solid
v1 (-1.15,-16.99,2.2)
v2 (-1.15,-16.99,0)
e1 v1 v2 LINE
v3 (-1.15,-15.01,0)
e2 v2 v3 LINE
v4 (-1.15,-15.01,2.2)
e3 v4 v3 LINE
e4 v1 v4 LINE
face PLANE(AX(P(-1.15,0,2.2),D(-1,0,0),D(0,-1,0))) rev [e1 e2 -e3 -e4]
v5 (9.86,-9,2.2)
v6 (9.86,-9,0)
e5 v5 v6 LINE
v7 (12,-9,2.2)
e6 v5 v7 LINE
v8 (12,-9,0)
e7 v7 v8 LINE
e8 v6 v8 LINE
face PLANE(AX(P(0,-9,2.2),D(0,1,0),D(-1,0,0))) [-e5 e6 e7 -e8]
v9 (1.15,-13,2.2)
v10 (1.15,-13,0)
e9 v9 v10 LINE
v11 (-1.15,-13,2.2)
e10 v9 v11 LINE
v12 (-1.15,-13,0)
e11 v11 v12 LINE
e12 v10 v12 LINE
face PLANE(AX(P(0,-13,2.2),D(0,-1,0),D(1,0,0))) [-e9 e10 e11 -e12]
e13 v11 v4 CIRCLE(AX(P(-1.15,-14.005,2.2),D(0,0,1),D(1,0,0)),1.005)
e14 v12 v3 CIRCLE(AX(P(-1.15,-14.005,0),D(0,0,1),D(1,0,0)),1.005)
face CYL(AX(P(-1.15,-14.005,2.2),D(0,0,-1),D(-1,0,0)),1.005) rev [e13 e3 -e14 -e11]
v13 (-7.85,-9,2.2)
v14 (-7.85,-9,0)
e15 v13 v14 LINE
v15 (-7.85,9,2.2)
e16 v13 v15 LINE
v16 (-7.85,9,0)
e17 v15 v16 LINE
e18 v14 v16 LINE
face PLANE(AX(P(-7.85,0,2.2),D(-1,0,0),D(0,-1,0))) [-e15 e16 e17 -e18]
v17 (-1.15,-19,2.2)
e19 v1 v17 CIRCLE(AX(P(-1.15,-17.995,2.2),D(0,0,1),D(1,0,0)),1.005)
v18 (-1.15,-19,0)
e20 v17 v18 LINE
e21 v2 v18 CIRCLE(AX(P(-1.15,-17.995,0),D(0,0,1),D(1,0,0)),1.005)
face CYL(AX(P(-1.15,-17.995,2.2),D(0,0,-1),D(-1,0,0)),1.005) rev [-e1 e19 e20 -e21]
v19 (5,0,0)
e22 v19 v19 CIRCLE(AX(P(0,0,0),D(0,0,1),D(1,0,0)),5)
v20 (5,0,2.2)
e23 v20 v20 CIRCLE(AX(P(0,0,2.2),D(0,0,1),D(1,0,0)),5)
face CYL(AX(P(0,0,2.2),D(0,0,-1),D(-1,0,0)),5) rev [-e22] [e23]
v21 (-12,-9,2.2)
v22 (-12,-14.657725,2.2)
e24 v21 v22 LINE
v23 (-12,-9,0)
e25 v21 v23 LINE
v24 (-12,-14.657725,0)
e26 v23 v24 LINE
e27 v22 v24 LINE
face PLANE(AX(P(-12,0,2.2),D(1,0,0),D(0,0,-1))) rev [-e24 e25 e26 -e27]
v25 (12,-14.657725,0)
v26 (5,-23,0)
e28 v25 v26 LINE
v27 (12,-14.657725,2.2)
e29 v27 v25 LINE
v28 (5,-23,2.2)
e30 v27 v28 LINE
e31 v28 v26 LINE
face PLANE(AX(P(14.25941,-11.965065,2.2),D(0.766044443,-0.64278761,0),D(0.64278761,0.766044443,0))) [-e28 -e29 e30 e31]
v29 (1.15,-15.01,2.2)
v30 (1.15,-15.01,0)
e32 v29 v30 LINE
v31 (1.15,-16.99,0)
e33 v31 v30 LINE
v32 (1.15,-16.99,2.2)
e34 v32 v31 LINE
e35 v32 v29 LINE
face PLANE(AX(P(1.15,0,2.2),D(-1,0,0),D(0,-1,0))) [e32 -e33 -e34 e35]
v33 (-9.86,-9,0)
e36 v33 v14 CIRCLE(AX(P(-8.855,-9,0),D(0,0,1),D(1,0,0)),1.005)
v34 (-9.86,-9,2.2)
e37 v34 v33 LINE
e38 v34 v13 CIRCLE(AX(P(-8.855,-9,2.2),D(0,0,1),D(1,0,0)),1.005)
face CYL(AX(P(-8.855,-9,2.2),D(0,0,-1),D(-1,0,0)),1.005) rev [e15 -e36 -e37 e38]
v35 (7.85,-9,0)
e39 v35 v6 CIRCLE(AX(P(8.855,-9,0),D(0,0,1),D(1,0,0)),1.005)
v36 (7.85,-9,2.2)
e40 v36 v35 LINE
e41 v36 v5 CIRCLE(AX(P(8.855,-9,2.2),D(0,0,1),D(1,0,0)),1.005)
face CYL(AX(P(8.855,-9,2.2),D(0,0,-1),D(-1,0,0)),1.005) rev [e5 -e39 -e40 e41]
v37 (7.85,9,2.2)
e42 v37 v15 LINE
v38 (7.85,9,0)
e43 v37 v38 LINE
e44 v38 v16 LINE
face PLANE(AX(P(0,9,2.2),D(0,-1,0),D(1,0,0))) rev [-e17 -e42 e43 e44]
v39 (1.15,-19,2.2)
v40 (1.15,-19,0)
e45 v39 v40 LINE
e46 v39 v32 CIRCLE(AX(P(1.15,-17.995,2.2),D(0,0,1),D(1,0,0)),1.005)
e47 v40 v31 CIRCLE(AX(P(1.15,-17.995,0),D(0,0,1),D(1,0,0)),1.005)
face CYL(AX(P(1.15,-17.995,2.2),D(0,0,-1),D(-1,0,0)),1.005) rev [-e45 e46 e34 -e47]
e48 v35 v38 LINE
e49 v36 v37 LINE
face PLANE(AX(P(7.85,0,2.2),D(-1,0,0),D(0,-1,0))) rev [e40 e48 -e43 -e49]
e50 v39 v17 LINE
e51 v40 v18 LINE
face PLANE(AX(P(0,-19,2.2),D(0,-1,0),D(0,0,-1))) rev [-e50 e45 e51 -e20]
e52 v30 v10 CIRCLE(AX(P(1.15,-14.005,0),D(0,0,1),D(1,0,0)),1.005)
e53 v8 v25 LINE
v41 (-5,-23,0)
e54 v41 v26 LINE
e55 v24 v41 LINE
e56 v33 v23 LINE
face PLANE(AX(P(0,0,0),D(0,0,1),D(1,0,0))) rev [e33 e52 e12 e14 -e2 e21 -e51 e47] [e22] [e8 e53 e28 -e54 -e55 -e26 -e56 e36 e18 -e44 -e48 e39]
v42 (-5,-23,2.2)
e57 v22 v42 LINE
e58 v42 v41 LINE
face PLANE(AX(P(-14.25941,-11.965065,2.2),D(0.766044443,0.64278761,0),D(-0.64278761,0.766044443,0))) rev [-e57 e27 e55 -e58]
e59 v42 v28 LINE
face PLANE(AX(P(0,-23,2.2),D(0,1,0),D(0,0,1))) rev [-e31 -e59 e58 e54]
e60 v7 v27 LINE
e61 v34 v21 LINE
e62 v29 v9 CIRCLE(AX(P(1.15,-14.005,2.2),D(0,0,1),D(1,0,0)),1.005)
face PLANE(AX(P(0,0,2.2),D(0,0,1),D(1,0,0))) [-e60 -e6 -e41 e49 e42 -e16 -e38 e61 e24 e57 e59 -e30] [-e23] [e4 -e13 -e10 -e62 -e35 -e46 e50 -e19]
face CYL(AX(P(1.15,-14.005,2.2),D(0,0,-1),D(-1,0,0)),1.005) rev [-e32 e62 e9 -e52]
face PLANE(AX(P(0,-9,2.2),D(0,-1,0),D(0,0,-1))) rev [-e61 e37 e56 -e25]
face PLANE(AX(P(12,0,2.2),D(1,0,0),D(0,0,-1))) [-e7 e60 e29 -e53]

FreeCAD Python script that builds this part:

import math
import FreeCAD as App
import Part
import Sketcher

V = App.Vector
Q = App.Units.Quantity

doc = App.newDocument("Part")
params = doc.addObject("Spreadsheet::Sheet", "Params")
for row, (alias, value) in enumerate([
    ("sketch1_diameter", "10 mm"),
    ("sketch1_width", "10 mm"),
    ("sketch1_height", "18 mm"),
    ("sketch1_width2", "15.7 mm"),
    ("sketch1_width3", "2.3 mm"),
    ("pad1_length", "2.2 mm"),
], start=1):
    params.set(f"A{row}", alias)
    params.set(f"B{row}", "=" + value)
    params.setAlias(f"B{row}", alias)

body = doc.addObject("PartDesign::Body", "Body")

# Sketch on XY plane
sketch1 = body.newObject("Sketcher::SketchObject", "Sketch")
sketch1.AttachmentSupport = (doc.getObject("XY_Plane"), [""])
sketch1.MapMode = "FlatFace"
sketch1.addGeometry(Part.LineSegment(V(-7.8, 9, 0), V(-7.8, -9, 0)), False)
sketch1.addGeometry(Part.ArcOfCircle(Part.Circle(V(-8.9, -9, 0), V(0, 0, 1), 1), math.radians(180), math.radians(360)), False)
sketch1.addGeometry(Part.LineSegment(V(-9.9, -9, 0), V(-12, -9, 0)), False)
sketch1.addGeometry(Part.LineSegment(V(-12, -9, 0), V(-12, -14.7, 0)), False)
sketch1.addGeometry(Part.LineSegment(V(-12, -14.7, 0), V(-5, -23, 0)), False)
sketch1.addGeometry(Part.LineSegment(V(-5, -23, 0), V(5, -23, 0)), False)
sketch1.addGeometry(Part.LineSegment(V(5, -23, 0), V(12, -14.7, 0)), False)
sketch1.addGeometry(Part.LineSegment(V(12, -14.7, 0), V(12, -9, 0)), False)
sketch1.addGeometry(Part.LineSegment(V(12, -9, 0), V(9.9, -9, 0)), False)
sketch1.addGeometry(Part.ArcOfCircle(Part.Circle(V(8.9, -9, 0), V(0, 0, 1), 1), math.radians(180), math.radians(360)), False)
sketch1.addGeometry(Part.LineSegment(V(7.8, -9, 0), V(7.8, 9, 0)), False)
sketch1.addGeometry(Part.LineSegment(V(7.8, 9, 0), V(-7.8, 9, 0)), False)
sketch1.addGeometry(Part.ArcOfCircle(Part.Circle(V(1.1, -18, 0), V(0, 0, 1), 1), math.radians(0), math.radians(90)), False)
sketch1.addGeometry(Part.ArcOfCircle(Part.Circle(V(1.1, -18, 0), V(0, 0, 1), 1), math.radians(-90), math.radians(0)), False)
sketch1.addGeometry(Part.LineSegment(V(1.1, -19, 0), V(-1.1, -19, 0)), False)
sketch1.addGeometry(Part.ArcOfCircle(Part.Circle(V(-1.1, -18, 0), V(0, 0, 1), 1), math.radians(90), math.radians(270)), False)
sketch1.addGeometry(Part.LineSegment(V(-1.1, -17, 0), V(-1.1, -15, 0)), False)
sketch1.addGeometry(Part.ArcOfCircle(Part.Circle(V(-1.1, -14, 0), V(0, 0, 1), 1), math.radians(90), math.radians(270)), False)
sketch1.addGeometry(Part.LineSegment(V(-1.1, -13, 0), V(1.1, -13, 0)), False)
sketch1.addGeometry(Part.ArcOfCircle(Part.Circle(V(1.1, -14, 0), V(0, 0, 1), 1), math.radians(0), math.radians(90)), False)
sketch1.addGeometry(Part.ArcOfCircle(Part.Circle(V(1.1, -14, 0), V(0, 0, 1), 1), math.radians(-90), math.radians(0)), False)
sketch1.addGeometry(Part.LineSegment(V(1.1, -15, 0), V(1.1, -17, 0)), False)
sketch1.addGeometry(Part.Circle(V(0, 0, 0), V(0, 0, 1), 5), False)
sketch1.addConstraint(Sketcher.Constraint("Tangent", 0, 2, 1, 2))
sketch1.addConstraint(Sketcher.Constraint("Coincident", 1, 1, 2, 1))
sketch1.addConstraint(Sketcher.Constraint("Coincident", 2, 2, 3, 1))
sketch1.addConstraint(Sketcher.Constraint("Coincident", 3, 2, 4, 1))
sketch1.addConstraint(Sketcher.Constraint("Coincident", 4, 2, 5, 1))
sketch1.addConstraint(Sketcher.Constraint("Coincident", 5, 2, 6, 1))
sketch1.addConstraint(Sketcher.Constraint("Coincident", 6, 2, 7, 1))
sketch1.addConstraint(Sketcher.Constraint("Coincident", 7, 2, 8, 1))
sketch1.addConstraint(Sketcher.Constraint("Coincident", 8, 2, 9, 2))
sketch1.addConstraint(Sketcher.Constraint("Tangent", 9, 1, 10, 1))
sketch1.addConstraint(Sketcher.Constraint("Coincident", 10, 2, 11, 1))
sketch1.addConstraint(Sketcher.Constraint("Coincident", 11, 2, 0, 1))
sketch1.addConstraint(Sketcher.Constraint("Tangent", 12, 1, 13, 2))
sketch1.addConstraint(Sketcher.Constraint("Tangent", 13, 1, 14, 1))
sketch1.addConstraint(Sketcher.Constraint("Tangent", 14, 2, 15, 2))
sketch1.addConstraint(Sketcher.Constraint("Coincident", 15, 1, 16, 1))
sketch1.addConstraint(Sketcher.Constraint("Coincident", 16, 2, 17, 2))
sketch1.addConstraint(Sketcher.Constraint("Tangent", 17, 1, 18, 1))
sketch1.addConstraint(Sketcher.Constraint("Tangent", 18, 2, 19, 2))
sketch1.addConstraint(Sketcher.Constraint("Tangent", 19, 1, 20, 2))
sketch1.addConstraint(Sketcher.Constraint("Coincident", 20, 1, 21, 1))
sketch1.addConstraint(Sketcher.Constraint("Coincident", 21, 2, 12, 2))
sketch1.addConstraint(Sketcher.Constraint("Vertical", 0))
sketch1.addConstraint(Sketcher.Constraint("Horizontal", 2))
sketch1.addConstraint(Sketcher.Constraint("Vertical", 3))
sketch1.addConstraint(Sketcher.Constraint("Horizontal", 5))
sketch1.addConstraint(Sketcher.Constraint("Vertical", 7))
sketch1.addConstraint(Sketcher.Constraint("Horizontal", 8))
sketch1.addConstraint(Sketcher.Constraint("Vertical", 10))
sketch1.addConstraint(Sketcher.Constraint("Horizontal", 11))
sketch1.addConstraint(Sketcher.Constraint("Horizontal", 14))
sketch1.addConstraint(Sketcher.Constraint("Vertical", 16))
sketch1.addConstraint(Sketcher.Constraint("Horizontal", 18))
sketch1.addConstraint(Sketcher.Constraint("Vertical", 21))
sketch1.addConstraint(Sketcher.Constraint("Coincident", 22, 3, -1, 1))
sketch1.addConstraint(Sketcher.Constraint("Equal", 1, 9))
sketch1.addConstraint(Sketcher.Constraint("Equal", 9, 12))
sketch1.addConstraint(Sketcher.Constraint("Equal", 12, 13))
sketch1.addConstraint(Sketcher.Constraint("Equal", 13, 15))
sketch1.addConstraint(Sketcher.Constraint("Equal", 15, 17))
sketch1.addConstraint(Sketcher.Constraint("Equal", 17, 19))
sketch1.addConstraint(Sketcher.Constraint("Equal", 19, 20))
sketch1.addConstraint(Sketcher.Constraint("Symmetric", 0, 2, 10, 2, -1, 1))
sketch1.addConstraint(Sketcher.Constraint("Symmetric", 3, 2, 6, 2, -2))
sketch1.addConstraint(Sketcher.Constraint("Horizontal", 1, 3, 9, 3))
sketch1.addConstraint(Sketcher.Constraint("Horizontal", 0, 2, 1, 1))
sketch1.addConstraint(Sketcher.Constraint("Horizontal", 2, 2, 7, 2))
sketch1.addConstraint(Sketcher.Constraint("Horizontal", 15, 3, 12, 1))
sketch1.addConstraint(Sketcher.Constraint("Horizontal", 20, 3, 19, 1))
sketch1.addConstraint(Sketcher.Constraint("Vertical", 15, 3, 17, 3))
sketch1.addConstraint(Sketcher.Constraint("Vertical", 13, 3, 19, 3))
sketch1.addConstraint(Sketcher.Constraint("Vertical", 14, 2, 15, 1))
sketch1.addConstraint(Sketcher.Constraint("Vertical", 18, 2, 20, 1))
sketch1.addConstraint(Sketcher.Constraint("Equal", 4, 6))
sketch1.addConstraint(Sketcher.Constraint("Diameter", 22, Q("10 mm")))
sketch1.addConstraint(Sketcher.Constraint("DistanceX", 5, 1, 5, 2, Q("10 mm")))
sketch1.addConstraint(Sketcher.Constraint("DistanceY", 0, 2, 0, 1, Q("18 mm")))
sketch1.addConstraint(Sketcher.Constraint("Angle", 4, Q("-50 deg")))
sketch1.addConstraint(Sketcher.Constraint("DistanceX", 11, 2, 11, 1, Q("15.7 mm")))
sketch1.addConstraint(Sketcher.Constraint("DistanceX", 14, 2, 14, 1, Q("2.3 mm")))
sketch1.addConstraint(Sketcher.Constraint("DistanceX", 2, 2, -1, 1, Q("12 mm")))
sketch1.addConstraint(Sketcher.Constraint("DistanceY", 4, 2, -1, 1, Q("23 mm")))
sketch1.addConstraint(Sketcher.Constraint("DistanceY", 13, 1, -1, 1, Q("19 mm")))
sketch1.addConstraint(Sketcher.Constraint("DistanceY", 17, 1, -1, 1, Q("13 mm")))
sketch1.addConstraint(Sketcher.Constraint("Radius", 1, Q("1.005 mm")))
sketch1.addConstraint(Sketcher.Constraint("DistanceX", 0, 2, 19, 3, Q("9 mm")))
sketch1.setExpression("Constraints[54]", "Params.sketch1_diameter")
sketch1.setExpression("Constraints[55]", "Params.sketch1_width")
sketch1.setExpression("Constraints[56]", "Params.sketch1_height")
sketch1.setExpression("Constraints[58]", "Params.sketch1_width2")
sketch1.setExpression("Constraints[59]", "Params.sketch1_width3")
pad1 = body.newObject("PartDesign::Pad", "Pad")
pad1.Profile = sketch1
pad1.setExpression("Length", "Params.pad1_length")

doc.recompute()
